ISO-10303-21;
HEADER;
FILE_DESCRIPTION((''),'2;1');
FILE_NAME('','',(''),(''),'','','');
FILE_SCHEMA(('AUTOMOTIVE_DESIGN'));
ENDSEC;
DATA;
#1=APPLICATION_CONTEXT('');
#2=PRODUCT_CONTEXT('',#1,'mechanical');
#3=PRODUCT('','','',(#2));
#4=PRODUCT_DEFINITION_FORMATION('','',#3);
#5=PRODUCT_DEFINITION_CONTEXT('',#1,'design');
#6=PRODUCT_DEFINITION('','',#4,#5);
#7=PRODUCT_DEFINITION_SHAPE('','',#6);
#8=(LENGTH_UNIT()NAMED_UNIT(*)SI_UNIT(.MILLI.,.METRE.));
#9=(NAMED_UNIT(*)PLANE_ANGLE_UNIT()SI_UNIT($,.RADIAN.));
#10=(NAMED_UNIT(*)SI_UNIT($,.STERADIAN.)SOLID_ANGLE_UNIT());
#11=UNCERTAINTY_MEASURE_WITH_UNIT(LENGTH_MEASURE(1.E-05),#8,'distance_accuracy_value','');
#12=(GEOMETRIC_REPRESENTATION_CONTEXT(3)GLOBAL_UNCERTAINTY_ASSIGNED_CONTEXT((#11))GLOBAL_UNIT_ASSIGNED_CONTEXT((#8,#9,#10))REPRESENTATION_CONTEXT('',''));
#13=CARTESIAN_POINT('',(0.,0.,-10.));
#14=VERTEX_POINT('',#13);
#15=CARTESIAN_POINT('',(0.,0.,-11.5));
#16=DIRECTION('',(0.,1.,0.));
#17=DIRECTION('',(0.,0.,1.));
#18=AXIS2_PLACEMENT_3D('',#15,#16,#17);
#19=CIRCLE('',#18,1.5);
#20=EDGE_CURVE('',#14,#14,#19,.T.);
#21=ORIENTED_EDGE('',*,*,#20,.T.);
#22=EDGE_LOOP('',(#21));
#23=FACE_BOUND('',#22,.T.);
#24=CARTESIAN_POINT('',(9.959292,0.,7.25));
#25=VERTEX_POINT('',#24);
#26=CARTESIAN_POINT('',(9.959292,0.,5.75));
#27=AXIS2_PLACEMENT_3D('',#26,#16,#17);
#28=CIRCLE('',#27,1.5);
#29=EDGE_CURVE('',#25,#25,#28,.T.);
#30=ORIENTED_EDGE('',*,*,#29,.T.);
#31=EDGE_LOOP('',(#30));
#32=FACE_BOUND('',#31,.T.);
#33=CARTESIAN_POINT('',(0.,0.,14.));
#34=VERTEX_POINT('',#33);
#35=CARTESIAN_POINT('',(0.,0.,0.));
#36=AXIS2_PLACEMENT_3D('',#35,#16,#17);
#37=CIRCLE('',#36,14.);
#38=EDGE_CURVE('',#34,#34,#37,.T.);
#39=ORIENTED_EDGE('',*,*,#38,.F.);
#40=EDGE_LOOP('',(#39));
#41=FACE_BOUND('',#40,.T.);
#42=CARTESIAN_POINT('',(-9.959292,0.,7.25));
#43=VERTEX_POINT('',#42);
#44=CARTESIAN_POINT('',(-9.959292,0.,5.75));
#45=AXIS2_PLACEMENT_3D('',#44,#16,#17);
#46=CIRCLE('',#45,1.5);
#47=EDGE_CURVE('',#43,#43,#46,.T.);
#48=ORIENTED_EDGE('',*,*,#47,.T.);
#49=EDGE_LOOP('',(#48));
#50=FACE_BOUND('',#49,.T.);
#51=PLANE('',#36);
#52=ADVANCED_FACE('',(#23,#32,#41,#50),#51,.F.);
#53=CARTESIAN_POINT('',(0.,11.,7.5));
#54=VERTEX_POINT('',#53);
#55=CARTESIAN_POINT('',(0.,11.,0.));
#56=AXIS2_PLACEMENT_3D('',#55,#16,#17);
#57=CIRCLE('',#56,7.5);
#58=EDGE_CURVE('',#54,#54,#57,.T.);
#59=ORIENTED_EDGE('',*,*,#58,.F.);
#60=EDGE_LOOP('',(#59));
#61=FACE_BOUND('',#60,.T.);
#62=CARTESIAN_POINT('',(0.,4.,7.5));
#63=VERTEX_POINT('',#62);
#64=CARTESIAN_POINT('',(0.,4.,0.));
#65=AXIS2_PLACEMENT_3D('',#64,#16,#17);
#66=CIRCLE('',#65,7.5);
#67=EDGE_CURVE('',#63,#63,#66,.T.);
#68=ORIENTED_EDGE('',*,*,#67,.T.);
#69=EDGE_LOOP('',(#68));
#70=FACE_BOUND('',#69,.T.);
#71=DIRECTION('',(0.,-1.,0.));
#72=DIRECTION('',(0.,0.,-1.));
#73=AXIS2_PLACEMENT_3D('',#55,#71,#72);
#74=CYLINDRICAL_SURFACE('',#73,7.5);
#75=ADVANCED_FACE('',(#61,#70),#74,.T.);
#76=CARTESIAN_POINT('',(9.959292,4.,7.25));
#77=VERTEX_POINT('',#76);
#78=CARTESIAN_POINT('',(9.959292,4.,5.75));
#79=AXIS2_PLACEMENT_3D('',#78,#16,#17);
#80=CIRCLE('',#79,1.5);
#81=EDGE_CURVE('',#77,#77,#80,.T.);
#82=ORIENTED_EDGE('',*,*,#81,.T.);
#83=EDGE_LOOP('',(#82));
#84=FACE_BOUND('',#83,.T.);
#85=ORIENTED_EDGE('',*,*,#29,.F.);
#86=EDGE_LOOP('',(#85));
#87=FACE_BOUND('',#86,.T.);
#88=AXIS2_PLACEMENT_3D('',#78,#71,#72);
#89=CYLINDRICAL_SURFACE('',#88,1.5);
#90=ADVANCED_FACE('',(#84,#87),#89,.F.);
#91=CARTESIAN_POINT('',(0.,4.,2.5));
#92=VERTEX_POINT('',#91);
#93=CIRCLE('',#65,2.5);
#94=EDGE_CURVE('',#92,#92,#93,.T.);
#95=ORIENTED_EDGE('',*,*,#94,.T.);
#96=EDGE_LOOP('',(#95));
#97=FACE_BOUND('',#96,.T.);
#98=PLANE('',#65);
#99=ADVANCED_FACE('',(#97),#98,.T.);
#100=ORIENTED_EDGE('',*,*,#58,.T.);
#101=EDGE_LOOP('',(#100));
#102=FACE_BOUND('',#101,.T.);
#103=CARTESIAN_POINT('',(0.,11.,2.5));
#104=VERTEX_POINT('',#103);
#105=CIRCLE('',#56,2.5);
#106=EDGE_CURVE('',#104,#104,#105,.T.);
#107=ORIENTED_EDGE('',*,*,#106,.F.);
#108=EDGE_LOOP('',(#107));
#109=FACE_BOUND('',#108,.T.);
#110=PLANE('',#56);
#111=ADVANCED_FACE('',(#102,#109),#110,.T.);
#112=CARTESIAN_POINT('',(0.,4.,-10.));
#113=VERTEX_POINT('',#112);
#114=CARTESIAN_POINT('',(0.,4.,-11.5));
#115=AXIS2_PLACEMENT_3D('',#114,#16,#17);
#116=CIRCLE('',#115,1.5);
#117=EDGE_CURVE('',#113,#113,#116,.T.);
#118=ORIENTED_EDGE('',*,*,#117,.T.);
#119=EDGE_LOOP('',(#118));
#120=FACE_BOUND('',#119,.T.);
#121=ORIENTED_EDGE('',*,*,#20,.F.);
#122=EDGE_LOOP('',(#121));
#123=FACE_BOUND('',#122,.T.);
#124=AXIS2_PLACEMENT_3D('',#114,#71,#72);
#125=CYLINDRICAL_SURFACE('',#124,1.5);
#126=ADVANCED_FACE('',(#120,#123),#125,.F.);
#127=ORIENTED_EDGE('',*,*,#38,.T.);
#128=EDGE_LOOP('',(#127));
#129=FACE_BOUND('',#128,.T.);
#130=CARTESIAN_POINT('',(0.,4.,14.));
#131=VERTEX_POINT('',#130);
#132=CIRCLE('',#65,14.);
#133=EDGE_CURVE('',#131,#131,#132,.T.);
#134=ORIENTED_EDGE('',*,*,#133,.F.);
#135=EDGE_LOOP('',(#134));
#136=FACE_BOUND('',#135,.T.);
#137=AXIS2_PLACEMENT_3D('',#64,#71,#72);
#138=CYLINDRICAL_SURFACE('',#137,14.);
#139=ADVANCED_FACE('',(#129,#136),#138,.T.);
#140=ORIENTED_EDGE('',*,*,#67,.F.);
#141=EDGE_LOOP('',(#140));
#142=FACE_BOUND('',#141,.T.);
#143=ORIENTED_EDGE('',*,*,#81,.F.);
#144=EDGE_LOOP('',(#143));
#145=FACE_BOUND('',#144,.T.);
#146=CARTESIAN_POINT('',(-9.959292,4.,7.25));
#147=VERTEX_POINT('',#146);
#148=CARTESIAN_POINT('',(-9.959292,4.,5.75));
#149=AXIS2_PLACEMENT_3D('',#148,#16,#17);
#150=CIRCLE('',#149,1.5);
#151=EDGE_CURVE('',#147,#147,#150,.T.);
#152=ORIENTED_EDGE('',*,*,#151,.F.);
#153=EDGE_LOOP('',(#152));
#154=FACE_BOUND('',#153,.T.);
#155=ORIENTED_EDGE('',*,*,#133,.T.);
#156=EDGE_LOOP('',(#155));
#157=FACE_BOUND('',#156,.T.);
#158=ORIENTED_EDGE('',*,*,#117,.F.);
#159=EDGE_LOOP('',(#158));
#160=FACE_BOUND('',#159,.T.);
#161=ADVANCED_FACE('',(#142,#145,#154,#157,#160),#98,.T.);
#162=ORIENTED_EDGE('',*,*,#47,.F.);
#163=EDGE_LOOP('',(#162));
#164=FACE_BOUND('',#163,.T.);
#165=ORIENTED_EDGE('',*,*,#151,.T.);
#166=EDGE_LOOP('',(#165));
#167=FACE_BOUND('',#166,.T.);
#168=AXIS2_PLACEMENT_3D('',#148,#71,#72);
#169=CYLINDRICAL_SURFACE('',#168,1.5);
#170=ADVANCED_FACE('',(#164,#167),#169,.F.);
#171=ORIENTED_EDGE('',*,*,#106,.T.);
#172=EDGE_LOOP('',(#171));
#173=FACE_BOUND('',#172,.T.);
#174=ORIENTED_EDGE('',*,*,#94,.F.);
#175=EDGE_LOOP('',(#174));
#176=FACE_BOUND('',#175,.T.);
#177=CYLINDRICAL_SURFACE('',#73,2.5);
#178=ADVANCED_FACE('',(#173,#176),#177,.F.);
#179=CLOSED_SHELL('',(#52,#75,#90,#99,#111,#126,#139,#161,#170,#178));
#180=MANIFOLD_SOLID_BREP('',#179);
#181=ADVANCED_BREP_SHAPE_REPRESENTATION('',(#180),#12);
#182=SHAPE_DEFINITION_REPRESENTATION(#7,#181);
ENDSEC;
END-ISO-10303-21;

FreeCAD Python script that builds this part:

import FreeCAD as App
import Part
import Sketcher
Q = App.Units.Quantity

doc = App.newDocument("Part")
body = doc.addObject("PartDesign::Body", "Body")

# Sketch on XZ plane
sketch1 = doc.addObject("Sketcher::SketchObject", "Sketch")
body.addObject(sketch1)
sketch1.AttachmentSupport = (doc.XZ_Plane, [""])
sketch1.MapMode = "FlatFace"
sketch1.addGeometry([
    Part.Circle(App.Vector(0, 0, 0), App.Vector(0, 0, 1), 14),
    Part.Circle(App.Vector(0, -11.5, 0), App.Vector(0, 0, 1), 1.5),
    Part.Circle(App.Vector(-10, 5.8, 0), App.Vector(0, 0, 1), 1.5),
    Part.Circle(App.Vector(10, 5.8, 0), App.Vector(0, 0, 1), 1.5),
], False)
sketch1.addConstraint([
    Sketcher.Constraint("Coincident", 0, 3, -1, 1),
    Sketcher.Constraint("Equal", 1, 2),
    Sketcher.Constraint("Equal", 2, 3),
    Sketcher.Constraint("Symmetric", 2, 3, 3, 3, -2),
    Sketcher.Constraint("PointOnObject", 1, 3, -2),
    Sketcher.Constraint("Diameter", 0, Q("28 mm")),
    Sketcher.Constraint("Diameter", 1, Q("3 mm")),
    Sketcher.Constraint("DistanceY", 1, 3, -1, 1, Q("11.5 mm")),
    Sketcher.Constraint("DistanceY", -1, 1, 2, 3, Q("5.75 mm")),
    Sketcher.Constraint("DistanceX", 2, 3, -1, 1, Q("9.959292 mm")),
])
pad1 = doc.addObject("PartDesign::Pad", "Pad")
body.addObject(pad1)
pad1.Profile = sketch1
pad1.Length = 4
pad1.Reversed = True

# Sketch on XZ plane
sketch2 = doc.addObject("Sketcher::SketchObject", "Sketch001")
body.addObject(sketch2)
sketch2.AttachmentSupport = (doc.XZ_Plane, [""])
sketch2.MapMode = "FlatFace"
sketch2.AttachmentOffset = App.Placement(App.Vector(0, 0, -4), App.Rotation())
sketch2.addGeometry([
    Part.Circle(App.Vector(0, 0, 0), App.Vector(0, 0, 1), 7.5),
    Part.Circle(App.Vector(0, 0, 0), App.Vector(0, 0, 1), 2.5),
], False)
sketch2.addConstraint([
    Sketcher.Constraint("Coincident", 0, 3, -1, 1),
    Sketcher.Constraint("Coincident", 1, 3, -1, 1),
    Sketcher.Constraint("Diameter", 0, Q("15 mm")),
    Sketcher.Constraint("Diameter", 1, Q("5 mm")),
])
pad2 = doc.addObject("PartDesign::Pad", "Pad001")
body.addObject(pad2)
pad2.Profile = sketch2
pad2.Length = 7
pad2.Reversed = True

doc.recompute()
